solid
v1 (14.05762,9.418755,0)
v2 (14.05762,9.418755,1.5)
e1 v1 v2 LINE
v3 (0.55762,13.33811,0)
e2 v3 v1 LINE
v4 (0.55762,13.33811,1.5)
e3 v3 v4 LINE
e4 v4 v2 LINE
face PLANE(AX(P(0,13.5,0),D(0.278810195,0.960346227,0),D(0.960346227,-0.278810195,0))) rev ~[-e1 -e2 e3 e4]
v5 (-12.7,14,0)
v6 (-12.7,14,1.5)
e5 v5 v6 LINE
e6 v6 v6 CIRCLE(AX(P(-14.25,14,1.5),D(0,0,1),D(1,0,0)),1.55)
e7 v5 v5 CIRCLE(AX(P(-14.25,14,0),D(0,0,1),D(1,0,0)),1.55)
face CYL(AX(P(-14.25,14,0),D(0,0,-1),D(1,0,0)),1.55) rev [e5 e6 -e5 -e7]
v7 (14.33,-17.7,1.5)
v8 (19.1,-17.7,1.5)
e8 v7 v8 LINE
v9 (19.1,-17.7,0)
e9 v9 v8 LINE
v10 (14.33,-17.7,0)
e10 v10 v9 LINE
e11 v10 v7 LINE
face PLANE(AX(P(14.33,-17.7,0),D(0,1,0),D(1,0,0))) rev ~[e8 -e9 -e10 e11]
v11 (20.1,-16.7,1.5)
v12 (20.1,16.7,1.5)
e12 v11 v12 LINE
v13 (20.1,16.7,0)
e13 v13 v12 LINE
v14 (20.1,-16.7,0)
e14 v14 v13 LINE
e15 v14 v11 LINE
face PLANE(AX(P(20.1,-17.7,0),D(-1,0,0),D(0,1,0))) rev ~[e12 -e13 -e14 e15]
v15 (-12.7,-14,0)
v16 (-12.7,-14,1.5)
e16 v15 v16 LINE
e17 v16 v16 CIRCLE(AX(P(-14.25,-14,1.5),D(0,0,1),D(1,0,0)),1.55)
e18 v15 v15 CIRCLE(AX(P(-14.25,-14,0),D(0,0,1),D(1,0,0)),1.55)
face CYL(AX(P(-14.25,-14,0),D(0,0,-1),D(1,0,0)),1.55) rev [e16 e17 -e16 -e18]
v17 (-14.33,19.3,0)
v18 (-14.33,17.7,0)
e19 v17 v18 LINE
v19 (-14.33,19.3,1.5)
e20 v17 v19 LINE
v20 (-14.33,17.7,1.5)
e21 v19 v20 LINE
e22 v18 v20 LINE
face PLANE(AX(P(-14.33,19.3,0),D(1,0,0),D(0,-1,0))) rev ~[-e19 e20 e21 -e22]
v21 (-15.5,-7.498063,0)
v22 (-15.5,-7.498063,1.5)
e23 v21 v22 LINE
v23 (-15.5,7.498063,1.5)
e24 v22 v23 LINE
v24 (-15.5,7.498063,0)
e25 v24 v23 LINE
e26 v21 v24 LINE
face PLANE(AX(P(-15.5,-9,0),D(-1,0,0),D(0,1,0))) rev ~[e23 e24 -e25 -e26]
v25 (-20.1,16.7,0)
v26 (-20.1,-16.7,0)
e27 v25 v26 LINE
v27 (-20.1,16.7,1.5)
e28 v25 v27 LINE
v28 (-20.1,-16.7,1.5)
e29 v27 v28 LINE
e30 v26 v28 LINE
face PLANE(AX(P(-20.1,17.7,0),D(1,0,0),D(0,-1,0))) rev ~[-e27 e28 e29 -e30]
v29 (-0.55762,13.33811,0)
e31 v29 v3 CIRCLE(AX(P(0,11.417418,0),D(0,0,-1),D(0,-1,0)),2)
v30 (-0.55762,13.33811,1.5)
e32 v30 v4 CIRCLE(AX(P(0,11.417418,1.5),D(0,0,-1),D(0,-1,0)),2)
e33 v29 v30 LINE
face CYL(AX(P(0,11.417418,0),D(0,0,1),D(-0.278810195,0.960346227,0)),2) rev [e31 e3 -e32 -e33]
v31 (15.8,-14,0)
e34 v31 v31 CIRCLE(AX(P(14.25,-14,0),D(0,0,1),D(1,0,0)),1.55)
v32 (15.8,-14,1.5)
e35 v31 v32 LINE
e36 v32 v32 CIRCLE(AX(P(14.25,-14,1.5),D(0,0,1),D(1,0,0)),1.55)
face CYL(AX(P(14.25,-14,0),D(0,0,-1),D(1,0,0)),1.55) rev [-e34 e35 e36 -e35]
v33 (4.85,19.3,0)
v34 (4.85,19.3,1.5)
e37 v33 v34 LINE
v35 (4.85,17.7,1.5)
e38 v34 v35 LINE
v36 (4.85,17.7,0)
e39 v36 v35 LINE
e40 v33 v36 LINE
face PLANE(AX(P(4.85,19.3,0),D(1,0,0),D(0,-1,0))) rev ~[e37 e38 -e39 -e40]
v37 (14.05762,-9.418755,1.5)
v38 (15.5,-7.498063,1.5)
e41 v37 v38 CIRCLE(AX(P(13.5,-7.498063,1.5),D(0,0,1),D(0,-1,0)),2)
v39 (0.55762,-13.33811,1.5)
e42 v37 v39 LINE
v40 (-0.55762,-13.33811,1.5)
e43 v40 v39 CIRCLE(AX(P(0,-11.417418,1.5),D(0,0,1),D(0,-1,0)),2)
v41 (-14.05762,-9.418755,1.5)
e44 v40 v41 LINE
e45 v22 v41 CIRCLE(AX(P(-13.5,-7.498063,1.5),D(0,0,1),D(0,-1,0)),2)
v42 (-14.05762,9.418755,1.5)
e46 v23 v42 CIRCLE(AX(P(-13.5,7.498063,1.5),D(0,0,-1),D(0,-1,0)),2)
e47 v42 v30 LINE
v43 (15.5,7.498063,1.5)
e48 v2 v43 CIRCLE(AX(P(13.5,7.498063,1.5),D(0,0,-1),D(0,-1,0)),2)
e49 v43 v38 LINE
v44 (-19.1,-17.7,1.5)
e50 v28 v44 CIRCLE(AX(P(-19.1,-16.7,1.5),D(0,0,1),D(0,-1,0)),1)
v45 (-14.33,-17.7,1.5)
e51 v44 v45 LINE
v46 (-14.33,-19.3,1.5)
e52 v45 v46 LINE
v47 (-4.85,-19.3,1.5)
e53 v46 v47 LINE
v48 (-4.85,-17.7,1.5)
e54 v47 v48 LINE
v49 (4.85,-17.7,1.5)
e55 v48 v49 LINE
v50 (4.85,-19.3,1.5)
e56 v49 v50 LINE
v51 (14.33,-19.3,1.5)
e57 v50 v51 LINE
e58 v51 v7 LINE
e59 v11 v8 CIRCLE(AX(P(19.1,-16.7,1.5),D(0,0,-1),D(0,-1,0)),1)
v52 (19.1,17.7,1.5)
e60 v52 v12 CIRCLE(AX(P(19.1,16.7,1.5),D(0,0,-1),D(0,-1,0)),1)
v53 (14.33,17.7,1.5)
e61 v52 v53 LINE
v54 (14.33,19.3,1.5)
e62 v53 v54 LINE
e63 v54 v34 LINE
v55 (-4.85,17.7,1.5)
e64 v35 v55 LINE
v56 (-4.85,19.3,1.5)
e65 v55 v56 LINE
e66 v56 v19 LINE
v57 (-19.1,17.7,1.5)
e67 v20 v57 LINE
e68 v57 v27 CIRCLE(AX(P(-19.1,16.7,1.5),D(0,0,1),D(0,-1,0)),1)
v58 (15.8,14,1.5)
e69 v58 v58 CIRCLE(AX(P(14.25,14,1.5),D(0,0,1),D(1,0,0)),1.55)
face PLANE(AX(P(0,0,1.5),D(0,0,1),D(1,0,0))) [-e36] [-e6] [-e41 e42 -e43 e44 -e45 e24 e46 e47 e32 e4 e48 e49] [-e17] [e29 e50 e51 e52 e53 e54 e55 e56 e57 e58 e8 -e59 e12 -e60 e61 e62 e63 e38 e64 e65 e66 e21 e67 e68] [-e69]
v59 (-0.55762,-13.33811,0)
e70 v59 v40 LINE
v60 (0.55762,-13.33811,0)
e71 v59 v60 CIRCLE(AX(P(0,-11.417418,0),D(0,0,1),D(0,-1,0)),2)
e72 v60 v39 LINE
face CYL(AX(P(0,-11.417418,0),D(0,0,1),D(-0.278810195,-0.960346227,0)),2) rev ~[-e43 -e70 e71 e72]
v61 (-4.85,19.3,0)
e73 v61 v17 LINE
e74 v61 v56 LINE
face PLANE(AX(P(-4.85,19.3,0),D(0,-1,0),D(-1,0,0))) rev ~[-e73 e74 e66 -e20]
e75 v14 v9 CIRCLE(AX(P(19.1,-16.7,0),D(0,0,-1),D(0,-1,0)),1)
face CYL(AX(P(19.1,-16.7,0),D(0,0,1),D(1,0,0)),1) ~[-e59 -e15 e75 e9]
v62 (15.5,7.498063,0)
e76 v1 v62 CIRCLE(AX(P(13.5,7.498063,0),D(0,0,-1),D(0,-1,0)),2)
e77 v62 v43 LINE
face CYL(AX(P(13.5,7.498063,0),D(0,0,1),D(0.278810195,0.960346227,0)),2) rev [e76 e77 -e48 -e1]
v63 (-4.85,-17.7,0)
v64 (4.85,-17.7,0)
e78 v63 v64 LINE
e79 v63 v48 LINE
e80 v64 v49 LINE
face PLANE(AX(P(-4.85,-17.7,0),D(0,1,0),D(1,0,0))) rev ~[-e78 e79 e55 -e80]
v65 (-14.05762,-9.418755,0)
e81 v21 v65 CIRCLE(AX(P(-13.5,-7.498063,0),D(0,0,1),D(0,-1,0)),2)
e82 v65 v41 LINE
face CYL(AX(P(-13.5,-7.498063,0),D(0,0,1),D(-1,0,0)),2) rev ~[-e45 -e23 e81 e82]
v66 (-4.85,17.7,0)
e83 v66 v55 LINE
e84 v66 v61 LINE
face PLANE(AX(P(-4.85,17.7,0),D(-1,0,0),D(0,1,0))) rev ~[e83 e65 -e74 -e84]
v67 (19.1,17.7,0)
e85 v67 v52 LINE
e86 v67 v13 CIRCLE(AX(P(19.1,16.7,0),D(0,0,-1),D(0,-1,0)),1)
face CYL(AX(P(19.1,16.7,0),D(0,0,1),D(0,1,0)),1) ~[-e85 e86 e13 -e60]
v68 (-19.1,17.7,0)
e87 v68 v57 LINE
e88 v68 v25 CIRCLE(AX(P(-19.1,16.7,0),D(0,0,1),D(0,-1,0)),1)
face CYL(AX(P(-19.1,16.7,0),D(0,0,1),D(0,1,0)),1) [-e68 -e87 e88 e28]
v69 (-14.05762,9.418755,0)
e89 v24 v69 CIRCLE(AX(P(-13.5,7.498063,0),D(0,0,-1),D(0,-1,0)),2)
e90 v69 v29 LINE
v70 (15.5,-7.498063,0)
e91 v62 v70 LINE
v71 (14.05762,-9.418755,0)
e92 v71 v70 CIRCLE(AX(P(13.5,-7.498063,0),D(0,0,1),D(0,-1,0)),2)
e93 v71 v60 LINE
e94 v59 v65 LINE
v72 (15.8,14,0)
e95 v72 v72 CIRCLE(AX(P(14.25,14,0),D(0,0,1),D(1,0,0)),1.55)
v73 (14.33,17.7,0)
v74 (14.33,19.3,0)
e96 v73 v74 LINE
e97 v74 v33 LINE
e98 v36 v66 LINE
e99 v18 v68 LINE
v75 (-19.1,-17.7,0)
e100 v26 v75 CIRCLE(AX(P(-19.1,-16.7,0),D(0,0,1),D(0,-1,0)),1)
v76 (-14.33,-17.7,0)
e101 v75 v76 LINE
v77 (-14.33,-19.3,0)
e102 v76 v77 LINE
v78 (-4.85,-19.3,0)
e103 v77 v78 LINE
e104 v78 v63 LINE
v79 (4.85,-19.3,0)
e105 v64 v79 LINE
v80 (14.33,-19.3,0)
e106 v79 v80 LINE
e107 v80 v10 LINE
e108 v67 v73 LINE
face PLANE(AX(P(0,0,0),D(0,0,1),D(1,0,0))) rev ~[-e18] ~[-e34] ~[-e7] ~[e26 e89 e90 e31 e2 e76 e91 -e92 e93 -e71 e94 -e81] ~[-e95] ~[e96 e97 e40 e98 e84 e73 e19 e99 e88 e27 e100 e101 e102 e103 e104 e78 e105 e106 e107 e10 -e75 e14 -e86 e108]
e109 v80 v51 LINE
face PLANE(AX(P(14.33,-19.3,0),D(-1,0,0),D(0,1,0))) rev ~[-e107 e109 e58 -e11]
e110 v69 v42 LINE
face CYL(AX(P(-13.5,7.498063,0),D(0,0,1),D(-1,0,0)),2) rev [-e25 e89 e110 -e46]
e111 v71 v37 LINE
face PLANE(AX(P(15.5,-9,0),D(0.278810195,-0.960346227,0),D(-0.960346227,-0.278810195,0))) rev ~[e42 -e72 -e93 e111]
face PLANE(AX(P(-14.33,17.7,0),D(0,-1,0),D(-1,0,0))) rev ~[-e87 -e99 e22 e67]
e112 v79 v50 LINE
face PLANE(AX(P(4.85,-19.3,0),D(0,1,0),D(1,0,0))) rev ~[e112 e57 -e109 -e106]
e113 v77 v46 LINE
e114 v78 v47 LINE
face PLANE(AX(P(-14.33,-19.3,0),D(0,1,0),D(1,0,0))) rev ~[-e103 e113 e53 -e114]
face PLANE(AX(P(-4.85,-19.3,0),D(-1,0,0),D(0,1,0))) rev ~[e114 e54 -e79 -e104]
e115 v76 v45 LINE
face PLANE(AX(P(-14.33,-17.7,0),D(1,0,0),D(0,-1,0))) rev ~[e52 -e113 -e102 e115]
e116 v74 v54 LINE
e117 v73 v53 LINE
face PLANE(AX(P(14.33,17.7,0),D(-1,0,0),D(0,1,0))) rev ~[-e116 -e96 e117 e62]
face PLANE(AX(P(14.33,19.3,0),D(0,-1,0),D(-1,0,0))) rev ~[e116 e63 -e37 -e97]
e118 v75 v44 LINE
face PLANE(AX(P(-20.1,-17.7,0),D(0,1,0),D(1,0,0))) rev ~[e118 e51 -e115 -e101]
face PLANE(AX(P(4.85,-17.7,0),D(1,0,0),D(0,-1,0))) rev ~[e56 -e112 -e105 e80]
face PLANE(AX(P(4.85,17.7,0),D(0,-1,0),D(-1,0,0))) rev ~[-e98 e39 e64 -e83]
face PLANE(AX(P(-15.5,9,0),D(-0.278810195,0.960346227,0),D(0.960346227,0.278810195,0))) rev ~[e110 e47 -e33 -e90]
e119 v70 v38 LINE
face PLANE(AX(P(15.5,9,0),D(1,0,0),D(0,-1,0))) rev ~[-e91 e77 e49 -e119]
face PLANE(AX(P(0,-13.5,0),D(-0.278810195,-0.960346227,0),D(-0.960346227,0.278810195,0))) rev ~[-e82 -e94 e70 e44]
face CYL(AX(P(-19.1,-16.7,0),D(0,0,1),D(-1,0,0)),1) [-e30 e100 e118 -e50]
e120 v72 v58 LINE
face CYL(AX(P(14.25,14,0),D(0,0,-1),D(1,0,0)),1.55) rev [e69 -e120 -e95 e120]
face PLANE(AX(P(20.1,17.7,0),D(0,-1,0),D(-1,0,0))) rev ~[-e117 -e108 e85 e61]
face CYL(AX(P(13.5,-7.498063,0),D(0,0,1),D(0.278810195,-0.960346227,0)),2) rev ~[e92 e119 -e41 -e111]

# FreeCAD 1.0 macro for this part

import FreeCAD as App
import Part
import Sketcher


def edges_at(feature, points):
    """Names of the edges that pass closest to the given points."""
    edges = feature.Shape.Edges
    near = lambda p: min(range(len(edges)), key=lambda i: edges[i].distToShape(Part.Vertex(*p))[0])
    return sorted({f"Edge{near(p) + 1}" for p in points})

doc = App.newDocument("Part")
params = doc.addObject("Spreadsheet::Sheet", "Params")
for row, (alias, value) in enumerate([
    ("sketch1_diameter", "3.1 mm"),
    ("sketch1_height", "18 mm"),
    ("sketch1_width", "9.7 mm"),
    ("sketch1_height2", "35.4 mm"),
    ("sketch1_height3", "1.6 mm"),
    ("pad1_length", "1.5 mm"),
    ("fillet_radius", "2 mm"),
    ("fillet2_radius", "1 mm"),
], start=1):
    params.set(f"A{row}", alias)
    params.set(f"B{row}", "=" + value)
    params.setAlias(f"B{row}", alias)

body = doc.addObject("PartDesign::Body", "Body")

# Sketch on XY plane
sketch1 = body.newObject("Sketcher::SketchObject", "Sketch")
sketch1.AttachmentSupport = (doc.getObject("XY_Plane"), [""])
sketch1.MapMode = "FlatFace"
sketch1.addGeometry([
    Part.LineSegment(App.Vector(-14.33, 17.7, 0), App.Vector(-20.1, 17.7, 0)),  # 0
    Part.LineSegment(App.Vector(-20.1, 17.7, 0), App.Vector(-20.1, -17.7, 0)),  # 1
    Part.LineSegment(App.Vector(-20.1, -17.7, 0), App.Vector(-14.33, -17.7, 0)),  # 2
    Part.LineSegment(App.Vector(-14.33, -17.7, 0), App.Vector(-14.33, -19.3, 0)),  # 3
    Part.LineSegment(App.Vector(-14.33, -19.3, 0), App.Vector(-4.85, -19.3, 0)),  # 4
    Part.LineSegment(App.Vector(-4.85, -19.3, 0), App.Vector(-4.85, -17.7, 0)),  # 5
    Part.LineSegment(App.Vector(-4.85, -17.7, 0), App.Vector(4.85, -17.7, 0)),  # 6
    Part.LineSegment(App.Vector(4.85, -17.7, 0), App.Vector(4.85, -19.3, 0)),  # 7
    Part.LineSegment(App.Vector(4.85, -19.3, 0), App.Vector(14.33, -19.3, 0)),  # 8
    Part.LineSegment(App.Vector(14.33, -19.3, 0), App.Vector(14.33, -17.7, 0)),  # 9
    Part.LineSegment(App.Vector(14.33, -17.7, 0), App.Vector(20.1, -17.7, 0)),  # 10
    Part.LineSegment(App.Vector(20.1, -17.7, 0), App.Vector(20.1, 17.7, 0)),  # 11
    Part.LineSegment(App.Vector(20.1, 17.7, 0), App.Vector(14.33, 17.7, 0)),  # 12
    Part.LineSegment(App.Vector(14.33, 17.7, 0), App.Vector(14.33, 19.3, 0)),  # 13
    Part.LineSegment(App.Vector(14.33, 19.3, 0), App.Vector(4.85, 19.3, 0)),  # 14
    Part.LineSegment(App.Vector(4.85, 19.3, 0), App.Vector(4.85, 17.7, 0)),  # 15
    Part.LineSegment(App.Vector(4.85, 17.7, 0), App.Vector(-4.85, 17.7, 0)),  # 16
    Part.LineSegment(App.Vector(-4.85, 17.7, 0), App.Vector(-4.85, 19.3, 0)),  # 17
    Part.LineSegment(App.Vector(-4.85, 19.3, 0), App.Vector(-14.33, 19.3, 0)),  # 18
    Part.LineSegment(App.Vector(-14.33, 19.3, 0), App.Vector(-14.33, 17.7, 0)),  # 19
    Part.Circle(App.Vector(-14.25, -14, 0), App.Vector(0, 0, 1), 1.55),  # 20
    Part.Circle(App.Vector(14.25, -14, 0), App.Vector(0, 0, 1), 1.55),  # 21
    Part.LineSegment(App.Vector(-15.5, -9, 0), App.Vector(-15.5, 9, 0)),  # 22
    Part.LineSegment(App.Vector(-15.5, 9, 0), App.Vector(0, 13.5, 0)),  # 23
    Part.LineSegment(App.Vector(0, 13.5, 0), App.Vector(15.5, 9, 0)),  # 24
    Part.LineSegment(App.Vector(15.5, 9, 0), App.Vector(15.5, -9, 0)),  # 25
    Part.LineSegment(App.Vector(15.5, -9, 0), App.Vector(0, -13.5, 0)),  # 26
    Part.LineSegment(App.Vector(0, -13.5, 0), App.Vector(-15.5, -9, 0)),  # 27
    Part.Circle(App.Vector(-14.25, 14, 0), App.Vector(0, 0, 1), 1.55),  # 28
    Part.Circle(App.Vector(14.25, 14, 0), App.Vector(0, 0, 1), 1.55),  # 29
], False)
sketch1.addConstraint([
    Sketcher.Constraint("Coincident", 0, 2, 1, 1),
    Sketcher.Constraint("Coincident", 1, 2, 2, 1),
    Sketcher.Constraint("Coincident", 2, 2, 3, 1),
    Sketcher.Constraint("Coincident", 3, 2, 4, 1),
    Sketcher.Constraint("Coincident", 4, 2, 5, 1),
    Sketcher.Constraint("Coincident", 5, 2, 6, 1),
    Sketcher.Constraint("Coincident", 6, 2, 7, 1),
    Sketcher.Constraint("Coincident", 7, 2, 8, 1),
    Sketcher.Constraint("Coincident", 8, 2, 9, 1),
    Sketcher.Constraint("Coincident", 9, 2, 10, 1),
    Sketcher.Constraint("Coincident", 10, 2, 11, 1),
    Sketcher.Constraint("Coincident", 11, 2, 12, 1),
    Sketcher.Constraint("Coincident", 12, 2, 13, 1),
    Sketcher.Constraint("Coincident", 13, 2, 14, 1),
    Sketcher.Constraint("Coincident", 14, 2, 15, 1),
    Sketcher.Constraint("Coincident", 15, 2, 16, 1),
    Sketcher.Constraint("Coincident", 16, 2, 17, 1),
    Sketcher.Constraint("Coincident", 17, 2, 18, 1),
    Sketcher.Constraint("Coincident", 18, 2, 19, 1),
    Sketcher.Constraint("Coincident", 19, 2, 0, 1),
    Sketcher.Constraint("Coincident", 22, 2, 23, 1),
    Sketcher.Constraint("Coincident", 23, 2, 24, 1),
    Sketcher.Constraint("Coincident", 24, 2, 25, 1),
    Sketcher.Constraint("Coincident", 25, 2, 26, 1),
    Sketcher.Constraint("Coincident", 26, 2, 27, 1),
    Sketcher.Constraint("Coincident", 27, 2, 22, 1),
    Sketcher.Constraint("Horizontal", 0),
    Sketcher.Constraint("Vertical", 1),
    Sketcher.Constraint("Horizontal", 2),
    Sketcher.Constraint("Vertical", 3),
    Sketcher.Constraint("Horizontal", 4),
    Sketcher.Constraint("Vertical", 5),
    Sketcher.Constraint("Horizontal", 6),
    Sketcher.Constraint("Vertical", 7),
    Sketcher.Constraint("Horizontal", 8),
    Sketcher.Constraint("Vertical", 9),
    Sketcher.Constraint("Horizontal", 10),
    Sketcher.Constraint("Vertical", 11),
    Sketcher.Constraint("Horizontal", 12),
    Sketcher.Constraint("Vertical", 13),
    Sketcher.Constraint("Horizontal", 14),
    Sketcher.Constraint("Vertical", 15),
    Sketcher.Constraint("Horizontal", 16),
    Sketcher.Constraint("Vertical", 17),
    Sketcher.Constraint("Horizontal", 18),
    Sketcher.Constraint("Vertical", 19),
    Sketcher.Constraint("Vertical", 22),
    Sketcher.Constraint("Vertical", 25),
    Sketcher.Constraint("Equal", 20, 21),
    Sketcher.Constraint("Equal", 21, 28),
    Sketcher.Constraint("Equal", 28, 29),
    Sketcher.Constraint("Symmetric", 21, 3, 28, 3, -1, 1),
    Sketcher.Constraint("Symmetric", 20, 3, 29, 3, -1, 1),
    Sketcher.Constraint("Symmetric", 0, 2, 10, 2, -1, 1),
    Sketcher.Constraint("Symmetric", 2, 2, 12, 2, -1, 1),
    Sketcher.Constraint("Symmetric", 4, 2, 14, 2, -1, 1),
    Sketcher.Constraint("Symmetric", 6, 2, 16, 2, -1, 1),
    Sketcher.Constraint("Symmetric", 8, 2, 18, 2, -1, 1),
    Sketcher.Constraint("Symmetric", 22, 2, 25, 2, -1, 1),
    Sketcher.Constraint("Symmetric", 23, 2, 26, 2, -1, 1),
    Sketcher.Constraint("Symmetric", 20, 3, 21, 3, -2),
    Sketcher.Constraint("Symmetric", 4, 2, 7, 2, -2),
    Sketcher.Constraint("Symmetric", 2, 2, 9, 2, -2),
    Sketcher.Constraint("PointOnObject", 23, 2, -2),
    Sketcher.Constraint("Parallel", 24, 27),
    Sketcher.Constraint("Horizontal", 2, 2, 5, 2),
    Sketcher.Constraint("Horizontal", 22, 2, 24, 2),
    Sketcher.Constraint("Diameter", 20, 3.1),
    Sketcher.Constraint("DistanceY", 22, 1, 22, 2, 18.0),
    Sketcher.Constraint("DistanceX", 6, 1, 6, 2, 9.7),
    Sketcher.Constraint("DistanceY", 1, 2, 1, 1, 35.4),
    Sketcher.Constraint("DistanceY", 3, 2, 3, 1, 1.6),
    Sketcher.Constraint("DistanceY", 20, 3, -1, 1, 14.0),
    Sketcher.Constraint("DistanceX", 0, 2, 0, 1, 5.77),
    Sketcher.Constraint("DistanceX", 4, 1, 4, 2, 9.48),
    Sketcher.Constraint("DistanceX", 22, 2, -1, 1, 15.5),
    Sketcher.Constraint("DistanceY", -1, 1, 23, 2, 13.5),
    Sketcher.Constraint("DistanceX", 20, 3, 21, 3, 28.5),
])
sketch1.setExpression("Constraints[67]", "Params.sketch1_diameter")
sketch1.setExpression("Constraints[68]", "Params.sketch1_height")
sketch1.setExpression("Constraints[69]", "Params.sketch1_width")
sketch1.setExpression("Constraints[70]", "Params.sketch1_height2")
sketch1.setExpression("Constraints[71]", "Params.sketch1_height3")
pad1 = body.newObject("PartDesign::Pad", "Pad")
pad1.Profile = sketch1
pad1.setExpression("Length", "Params.pad1_length")
doc.recompute()

fillet = body.newObject("PartDesign::Fillet", "Fillet")
fillet.Base = (pad1, edges_at(pad1, [
    (-15.5, -9, 0.75),
    (-15.5, 9, 0.75),
    (0, 13.5, 0.75),
    (15.5, 9, 0.75),
    (15.5, -9, 0.75),
    (0, -13.5, 0.75),
]))
fillet.setExpression("Radius", "Params.fillet_radius")
doc.recompute()

fillet2 = body.newObject("PartDesign::Fillet", "Fillet001")
fillet2.Base = (fillet, edges_at(fillet, [
    (-20.1, 17.7, 0.75),
    (20.1, 17.7, 0.75),
    (20.1, -17.7, 0.75),
    (-20.1, -17.7, 0.75),
]))
fillet2.setExpression("Radius", "Params.fillet2_radius")

doc.recompute()
